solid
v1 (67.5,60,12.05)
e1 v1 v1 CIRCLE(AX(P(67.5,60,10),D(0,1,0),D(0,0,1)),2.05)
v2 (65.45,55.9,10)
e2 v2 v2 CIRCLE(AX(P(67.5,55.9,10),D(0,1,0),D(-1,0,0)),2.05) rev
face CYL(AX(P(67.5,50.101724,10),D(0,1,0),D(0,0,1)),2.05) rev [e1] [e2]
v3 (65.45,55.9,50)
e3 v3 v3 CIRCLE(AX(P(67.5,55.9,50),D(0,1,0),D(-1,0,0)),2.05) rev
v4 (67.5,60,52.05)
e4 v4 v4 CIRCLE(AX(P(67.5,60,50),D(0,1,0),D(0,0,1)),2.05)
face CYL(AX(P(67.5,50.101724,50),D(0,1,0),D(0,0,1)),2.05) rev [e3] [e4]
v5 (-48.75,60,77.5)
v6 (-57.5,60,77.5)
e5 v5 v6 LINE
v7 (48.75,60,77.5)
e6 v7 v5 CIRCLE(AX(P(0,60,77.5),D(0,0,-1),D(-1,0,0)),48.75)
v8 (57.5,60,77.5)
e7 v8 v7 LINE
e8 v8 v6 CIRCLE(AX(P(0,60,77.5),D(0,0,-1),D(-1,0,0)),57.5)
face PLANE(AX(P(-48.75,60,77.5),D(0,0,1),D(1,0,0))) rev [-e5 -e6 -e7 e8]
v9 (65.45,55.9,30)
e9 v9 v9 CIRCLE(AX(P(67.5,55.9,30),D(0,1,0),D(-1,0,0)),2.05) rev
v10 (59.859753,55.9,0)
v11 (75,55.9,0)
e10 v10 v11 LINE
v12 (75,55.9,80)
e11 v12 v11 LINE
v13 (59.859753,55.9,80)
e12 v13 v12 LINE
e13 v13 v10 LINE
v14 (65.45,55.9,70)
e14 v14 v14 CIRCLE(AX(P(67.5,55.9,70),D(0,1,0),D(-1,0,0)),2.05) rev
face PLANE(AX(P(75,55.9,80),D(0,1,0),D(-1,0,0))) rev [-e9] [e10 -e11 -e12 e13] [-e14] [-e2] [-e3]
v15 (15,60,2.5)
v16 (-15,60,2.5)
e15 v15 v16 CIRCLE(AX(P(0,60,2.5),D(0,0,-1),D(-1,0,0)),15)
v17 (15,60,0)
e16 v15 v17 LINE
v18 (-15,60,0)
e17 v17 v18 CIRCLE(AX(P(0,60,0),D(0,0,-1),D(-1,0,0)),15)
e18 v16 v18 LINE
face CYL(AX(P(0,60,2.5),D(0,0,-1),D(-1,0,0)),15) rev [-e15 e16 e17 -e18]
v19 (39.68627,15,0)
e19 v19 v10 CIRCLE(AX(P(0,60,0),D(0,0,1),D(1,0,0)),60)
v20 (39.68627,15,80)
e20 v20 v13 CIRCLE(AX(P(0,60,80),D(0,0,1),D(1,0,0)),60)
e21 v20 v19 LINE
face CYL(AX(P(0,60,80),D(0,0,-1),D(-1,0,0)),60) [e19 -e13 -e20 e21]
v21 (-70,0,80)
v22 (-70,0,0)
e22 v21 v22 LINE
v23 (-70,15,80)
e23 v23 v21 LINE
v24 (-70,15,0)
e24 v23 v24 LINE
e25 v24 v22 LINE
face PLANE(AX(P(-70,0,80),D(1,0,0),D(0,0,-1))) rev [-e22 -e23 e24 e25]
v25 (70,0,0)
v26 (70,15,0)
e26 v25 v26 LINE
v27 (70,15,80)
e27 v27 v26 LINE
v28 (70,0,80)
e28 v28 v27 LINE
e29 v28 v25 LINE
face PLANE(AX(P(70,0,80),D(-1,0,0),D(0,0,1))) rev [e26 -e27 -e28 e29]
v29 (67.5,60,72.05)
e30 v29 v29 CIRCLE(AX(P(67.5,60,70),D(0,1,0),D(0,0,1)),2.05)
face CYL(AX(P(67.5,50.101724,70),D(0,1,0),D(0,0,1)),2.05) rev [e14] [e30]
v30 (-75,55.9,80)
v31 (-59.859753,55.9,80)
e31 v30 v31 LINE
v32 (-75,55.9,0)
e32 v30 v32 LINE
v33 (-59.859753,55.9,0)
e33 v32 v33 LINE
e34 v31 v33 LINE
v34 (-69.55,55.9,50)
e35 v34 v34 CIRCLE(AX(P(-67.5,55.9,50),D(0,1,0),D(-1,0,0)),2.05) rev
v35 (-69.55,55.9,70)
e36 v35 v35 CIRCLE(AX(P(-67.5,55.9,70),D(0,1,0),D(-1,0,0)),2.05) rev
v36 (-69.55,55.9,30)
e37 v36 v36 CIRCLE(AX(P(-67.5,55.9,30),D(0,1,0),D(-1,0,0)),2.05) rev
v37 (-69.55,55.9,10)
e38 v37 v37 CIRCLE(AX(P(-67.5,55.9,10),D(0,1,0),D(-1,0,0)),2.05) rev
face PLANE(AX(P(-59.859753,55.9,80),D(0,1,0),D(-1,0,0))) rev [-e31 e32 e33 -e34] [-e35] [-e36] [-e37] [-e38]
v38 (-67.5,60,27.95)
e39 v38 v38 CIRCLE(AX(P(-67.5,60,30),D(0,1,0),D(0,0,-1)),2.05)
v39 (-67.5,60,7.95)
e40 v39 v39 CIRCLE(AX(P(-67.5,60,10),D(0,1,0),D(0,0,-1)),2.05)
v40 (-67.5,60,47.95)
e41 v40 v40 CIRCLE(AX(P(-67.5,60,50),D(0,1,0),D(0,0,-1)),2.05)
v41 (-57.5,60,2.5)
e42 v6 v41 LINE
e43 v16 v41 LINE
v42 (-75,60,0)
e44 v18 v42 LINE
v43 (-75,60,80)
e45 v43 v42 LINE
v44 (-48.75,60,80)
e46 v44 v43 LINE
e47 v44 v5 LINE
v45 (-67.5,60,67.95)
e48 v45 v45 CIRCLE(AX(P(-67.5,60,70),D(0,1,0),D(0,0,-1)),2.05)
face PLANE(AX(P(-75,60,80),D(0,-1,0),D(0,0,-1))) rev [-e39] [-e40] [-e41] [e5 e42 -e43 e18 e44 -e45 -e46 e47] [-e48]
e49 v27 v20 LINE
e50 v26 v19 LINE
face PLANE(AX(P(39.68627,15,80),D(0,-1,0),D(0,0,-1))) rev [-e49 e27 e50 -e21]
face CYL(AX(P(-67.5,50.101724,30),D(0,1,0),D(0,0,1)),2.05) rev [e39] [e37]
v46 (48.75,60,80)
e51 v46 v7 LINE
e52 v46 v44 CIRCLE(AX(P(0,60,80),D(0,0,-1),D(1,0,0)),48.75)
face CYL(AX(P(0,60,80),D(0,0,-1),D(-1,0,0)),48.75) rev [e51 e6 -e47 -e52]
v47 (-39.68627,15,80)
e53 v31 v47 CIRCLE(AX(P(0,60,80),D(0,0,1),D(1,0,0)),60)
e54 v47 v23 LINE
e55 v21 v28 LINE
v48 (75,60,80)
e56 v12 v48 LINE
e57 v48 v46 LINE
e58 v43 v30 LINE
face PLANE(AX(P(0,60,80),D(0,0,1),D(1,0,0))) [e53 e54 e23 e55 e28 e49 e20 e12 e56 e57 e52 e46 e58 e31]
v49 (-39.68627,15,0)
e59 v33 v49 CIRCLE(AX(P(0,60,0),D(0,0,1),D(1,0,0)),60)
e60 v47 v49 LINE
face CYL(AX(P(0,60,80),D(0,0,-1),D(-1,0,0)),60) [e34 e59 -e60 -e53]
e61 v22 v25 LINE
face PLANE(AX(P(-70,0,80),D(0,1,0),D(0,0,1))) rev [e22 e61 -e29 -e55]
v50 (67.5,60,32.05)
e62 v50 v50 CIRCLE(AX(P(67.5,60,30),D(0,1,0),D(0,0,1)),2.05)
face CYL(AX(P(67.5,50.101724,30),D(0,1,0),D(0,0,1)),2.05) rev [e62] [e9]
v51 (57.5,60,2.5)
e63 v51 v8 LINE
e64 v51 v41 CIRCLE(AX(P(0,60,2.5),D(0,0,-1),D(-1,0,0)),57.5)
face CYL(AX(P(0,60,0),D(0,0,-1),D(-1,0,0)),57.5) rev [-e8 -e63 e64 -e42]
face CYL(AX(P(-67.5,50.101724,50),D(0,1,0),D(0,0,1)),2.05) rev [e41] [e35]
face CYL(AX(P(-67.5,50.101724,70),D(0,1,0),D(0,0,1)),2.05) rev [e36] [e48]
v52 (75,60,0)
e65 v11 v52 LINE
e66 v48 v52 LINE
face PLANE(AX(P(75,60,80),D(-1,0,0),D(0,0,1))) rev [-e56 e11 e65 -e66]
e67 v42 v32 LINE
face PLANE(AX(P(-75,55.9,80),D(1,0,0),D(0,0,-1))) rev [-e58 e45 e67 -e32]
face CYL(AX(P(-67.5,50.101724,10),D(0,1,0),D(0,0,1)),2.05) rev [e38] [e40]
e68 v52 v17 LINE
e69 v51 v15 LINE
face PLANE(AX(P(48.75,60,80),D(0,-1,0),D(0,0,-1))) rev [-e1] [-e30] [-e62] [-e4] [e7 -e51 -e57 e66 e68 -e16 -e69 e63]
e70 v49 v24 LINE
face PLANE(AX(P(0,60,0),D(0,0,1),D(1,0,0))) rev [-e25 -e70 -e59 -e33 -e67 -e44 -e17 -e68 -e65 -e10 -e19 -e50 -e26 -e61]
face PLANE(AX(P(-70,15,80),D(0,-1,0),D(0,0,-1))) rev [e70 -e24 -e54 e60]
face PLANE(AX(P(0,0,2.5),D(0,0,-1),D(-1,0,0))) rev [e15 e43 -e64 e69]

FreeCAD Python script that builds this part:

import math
import FreeCAD as App
import Part
import Sketcher

V = App.Vector
Q = App.Units.Quantity


def add_polygon(sketch, points):
    """Adds a closed chain of lines whose ends are joined by coincident constraints."""
    first, n = sketch.GeometryCount, len(points)
    for a, b in zip(points, points[1:] + points[:1]):
        sketch.addGeometry(Part.LineSegment(App.Vector(*a, 0), App.Vector(*b, 0)), False)
    for i in range(n):
        sketch.addConstraint(Sketcher.Constraint("Coincident", first + i, 2, first + (i + 1) % n, 1))

doc = App.newDocument("Part")
body = doc.addObject("PartDesign::Body", "Body")

sketch1 = body.newObject("Sketcher::SketchObject", "Sketch")
sketch1.AttachmentSupport = (doc.getObject("XY_Plane"), [""])
sketch1.MapMode = "FlatFace"
sketch1.addGeometry(Part.LineSegment(V(-70, 0, 0), V(70, 0, 0)), False)
sketch1.addGeometry(Part.LineSegment(V(70, 0, 0), V(70, 15, 0)), False)
sketch1.addGeometry(Part.LineSegment(V(70, 15, 0), V(39.7, 15, 0)), False)
sketch1.addGeometry(Part.ArcOfCircle(Part.Circle(V(0, 60, 0), V(0, 0, 1), 60), math.radians(-49), math.radians(-4)), False)
sketch1.addGeometry(Part.LineSegment(V(59.9, 55.9, 0), V(75, 55.9, 0)), False)
sketch1.addGeometry(Part.LineSegment(V(75, 55.9, 0), V(75, 60, 0)), False)
sketch1.addGeometry(Part.LineSegment(V(75, 60, 0), V(48.8, 60, 0)), False)
sketch1.addGeometry(Part.ArcOfCircle(Part.Circle(V(0, 60, 0), V(0, 0, 1), 48.8), math.radians(180), math.radians(360)), False)
sketch1.addGeometry(Part.LineSegment(V(-48.8, 60, 0), V(-75, 60, 0)), False)
sketch1.addGeometry(Part.LineSegment(V(-75, 60, 0), V(-75, 55.9, 0)), False)
sketch1.addGeometry(Part.LineSegment(V(-75, 55.9, 0), V(-59.9, 55.9, 0)), False)
sketch1.addGeometry(Part.ArcOfCircle(Part.Circle(V(0, 60, 0), V(0, 0, 1), 60), math.radians(-176), math.radians(-131)), False)
sketch1.addGeometry(Part.LineSegment(V(-39.7, 15, 0), V(-70, 15, 0)), False)
sketch1.addGeometry(Part.LineSegment(V(-70, 15, 0), V(-70, 0, 0)), False)
sketch1.addConstraint(Sketcher.Constraint("Coincident", 0, 2, 1, 1))
sketch1.addConstraint(Sketcher.Constraint("Coincident", 1, 2, 2, 1))
sketch1.addConstraint(Sketcher.Constraint("Coincident", 2, 2, 3, 1))
sketch1.addConstraint(Sketcher.Constraint("Coincident", 3, 2, 4, 1))
sketch1.addConstraint(Sketcher.Constraint("Coincident", 4, 2, 5, 1))
sketch1.addConstraint(Sketcher.Constraint("Coincident", 5, 2, 6, 1))
sketch1.addConstraint(Sketcher.Constraint("Coincident", 6, 2, 7, 2))
sketch1.addConstraint(Sketcher.Constraint("Coincident", 7, 1, 8, 1))
sketch1.addConstraint(Sketcher.Constraint("Coincident", 8, 2, 9, 1))
sketch1.addConstraint(Sketcher.Constraint("Coincident", 9, 2, 10, 1))
sketch1.addConstraint(Sketcher.Constraint("Coincident", 10, 2, 11, 1))
sketch1.addConstraint(Sketcher.Constraint("Coincident", 11, 2, 12, 1))
sketch1.addConstraint(Sketcher.Constraint("Coincident", 12, 2, 13, 1))
sketch1.addConstraint(Sketcher.Constraint("Coincident", 13, 2, 0, 1))
sketch1.addConstraint(Sketcher.Constraint("Horizontal", 0))
sketch1.addConstraint(Sketcher.Constraint("Vertical", 1))
sketch1.addConstraint(Sketcher.Constraint("Horizontal", 2))
sketch1.addConstraint(Sketcher.Constraint("Horizontal", 4))
sketch1.addConstraint(Sketcher.Constraint("Vertical", 5))
sketch1.addConstraint(Sketcher.Constraint("Horizontal", 6))
sketch1.addConstraint(Sketcher.Constraint("Horizontal", 8))
sketch1.addConstraint(Sketcher.Constraint("Vertical", 9))
sketch1.addConstraint(Sketcher.Constraint("Horizontal", 10))
sketch1.addConstraint(Sketcher.Constraint("Horizontal", 12))
sketch1.addConstraint(Sketcher.Constraint("Vertical", 13))
sketch1.addConstraint(Sketcher.Constraint("Coincident", 7, 3, 3, 3))
sketch1.addConstraint(Sketcher.Constraint("Coincident", 11, 3, 3, 3))
sketch1.addConstraint(Sketcher.Constraint("Equal", 3, 11))
sketch1.addConstraint(Sketcher.Constraint("Symmetric", 0, 2, 13, 2, -1, 1))
sketch1.addConstraint(Sketcher.Constraint("Symmetric", 6, 2, 7, 1, -2))
sketch1.addConstraint(Sketcher.Constraint("Symmetric", 4, 2, 9, 2, -2))
sketch1.addConstraint(Sketcher.Constraint("Horizontal", 11, 3, 5, 2))
sketch1.addConstraint(Sketcher.Constraint("Horizontal", 2, 2, 11, 2))
sketch1.addConstraint(Sketcher.Constraint("Radius", 3, Q("60 mm")))
sketch1.addConstraint(Sketcher.Constraint("DistanceX", 0, 1, 0, 2, Q("140 mm")))
sketch1.addConstraint(Sketcher.Constraint("DistanceY", 1, 1, 1, 2, Q("15 mm")))
sketch1.addConstraint(Sketcher.Constraint("Radius", 7, Q("48.75 mm")))
sketch1.addConstraint(Sketcher.Constraint("DistanceY", 5, 1, 5, 2, Q("4.1 mm")))
sketch1.addConstraint(Sketcher.Constraint("DistanceY", -1, 1, 3, 3, Q("60 mm")))
sketch1.addConstraint(Sketcher.Constraint("DistanceX", -1, 1, 4, 2, Q("75 mm")))
pad1 = body.newObject("PartDesign::Pad", "Pad")
pad1.Profile = sketch1
pad1.Length = 80

sketch2 = body.newObject("Sketcher::SketchObject", "Sketch001")
sketch2.AttachmentSupport = (doc.getObject("XY_Plane"), [""])
sketch2.MapMode = "FlatFace"
sketch2.addGeometry(Part.ArcOfCircle(Part.Circle(V(0, 60, 0), V(0, 0, 1), 15), math.radians(180), math.radians(360)), False)
sketch2.addGeometry(Part.LineSegment(V(15, 60, 0), V(49, 60, 0)), False)
sketch2.addGeometry(Part.ArcOfCircle(Part.Circle(V(0, 60, 0), V(0, 0, 1), 49), math.radians(180), math.radians(360)), False)
sketch2.addGeometry(Part.LineSegment(V(-49, 60, 0), V(-15, 60, 0)), False)
sketch2.addConstraint(Sketcher.Constraint("Coincident", 0, 2, 1, 1))
sketch2.addConstraint(Sketcher.Constraint("Coincident", 1, 2, 2, 2))
sketch2.addConstraint(Sketcher.Constraint("Coincident", 2, 1, 3, 1))
sketch2.addConstraint(Sketcher.Constraint("Coincident", 3, 2, 0, 1))
sketch2.addConstraint(Sketcher.Constraint("Horizontal", 1))
sketch2.addConstraint(Sketcher.Constraint("Horizontal", 3))
sketch2.addConstraint(Sketcher.Constraint("Coincident", 2, 3, 0, 3))
sketch2.addConstraint(Sketcher.Constraint("Symmetric", 1, 2, 2, 1, -2))
sketch2.addConstraint(Sketcher.Constraint("Horizontal", 2, 3, 0, 2))
sketch2.addConstraint(Sketcher.Constraint("Radius", 0, Q("15 mm")))
sketch2.addConstraint(Sketcher.Constraint("Radius", 2, Q("48.75 mm")))
sketch2.addConstraint(Sketcher.Constraint("DistanceY", -1, 1, 0, 3, Q("60 mm")))
pad2 = body.newObject("PartDesign::Pad", "Pad001")
pad2.Profile = sketch2
pad2.Length = 2.5

sketch3 = body.newObject("Sketcher::SketchObject", "Sketch002")
sketch3.AttachmentSupport = (doc.getObject("XZ_Plane"), [""])
sketch3.MapMode = "FlatFace"
sketch3.AttachmentOffset = App.Placement(V(0, 0, -60), App.Rotation())
add_polygon(sketch3, [(-58, 2), (-58, 78), (-49, 78), (-49, 2)])
sketch3.addConstraint(Sketcher.Constraint("Vertical", 0))
sketch3.addConstraint(Sketcher.Constraint("Horizontal", 1))
sketch3.addConstraint(Sketcher.Constraint("Vertical", 2))
sketch3.addConstraint(Sketcher.Constraint("Horizontal", 3))
sketch3.addConstraint(Sketcher.Constraint("DistanceY", 0, 1, 0, 2, Q("75 mm")))
sketch3.addConstraint(Sketcher.Constraint("DistanceX", 1, 1, 1, 2, Q("8.75 mm")))
sketch3.addConstraint(Sketcher.Constraint("DistanceX", 0, 2, -1, 1, Q("57.5 mm")))
sketch3.addConstraint(Sketcher.Constraint("DistanceY", -1, 1, 0, 2, Q("77.5 mm")))
groove = body.newObject("PartDesign::Groove", "Groove")
groove.Profile = sketch3
groove.ReferenceAxis = (sketch3, ["V_Axis"])
groove.Angle = 360

sketch4 = body.newObject("Sketcher::SketchObject", "Sketch003")
sketch4.AttachmentSupport = (doc.getObject("XZ_Plane"), [""])
sketch4.MapMode = "FlatFace"
sketch4.AttachmentOffset = App.Placement(V(0, 0, -60), App.Rotation())
sketch4.addGeometry(Part.Circle(V(67.5, 70, 0), V(0, 0, 1), 2), False)
sketch4.addGeometry(Part.Circle(V(67.5, 50, 0), V(0, 0, 1), 2), False)
sketch4.addGeometry(Part.Circle(V(67.5, 30, 0), V(0, 0, 1), 2), False)
sketch4.addGeometry(Part.Circle(V(67.5, 10, 0), V(0, 0, 1), 2), False)
sketch4.addGeometry(Part.Circle(V(-67.5, 10, 0), V(0, 0, 1), 2), False)
sketch4.addGeometry(Part.Circle(V(-67.5, 30, 0), V(0, 0, 1), 2), False)
sketch4.addGeometry(Part.Circle(V(-67.5, 50, 0), V(0, 0, 1), 2), False)
sketch4.addGeometry(Part.Circle(V(-67.5, 70, 0), V(0, 0, 1), 2), False)
sketch4.addConstraint(Sketcher.Constraint("Equal", 0, 1))
sketch4.addConstraint(Sketcher.Constraint("Equal", 1, 2))
sketch4.addConstraint(Sketcher.Constraint("Equal", 2, 3))
sketch4.addConstraint(Sketcher.Constraint("Equal", 3, 4))
sketch4.addConstraint(Sketcher.Constraint("Equal", 4, 5))
sketch4.addConstraint(Sketcher.Constraint("Equal", 5, 6))
sketch4.addConstraint(Sketcher.Constraint("Equal", 6, 7))
sketch4.addConstraint(Sketcher.Constraint("Symmetric", 3, 3, 4, 3, -2))
sketch4.addConstraint(Sketcher.Constraint("Symmetric", 2, 3, 5, 3, -2))
sketch4.addConstraint(Sketcher.Constraint("Symmetric", 1, 3, 6, 3, -2))
sketch4.addConstraint(Sketcher.Constraint("Symmetric", 0, 3, 7, 3, -2))
sketch4.addConstraint(Sketcher.Constraint("Vertical", 0, 3, 1, 3))
sketch4.addConstraint(Sketcher.Constraint("Vertical", 1, 3, 2, 3))
sketch4.addConstraint(Sketcher.Constraint("Vertical", 2, 3, 3, 3))
sketch4.addConstraint(Sketcher.Constraint("Diameter", 0, Q("4.1 mm")))
sketch4.addConstraint(Sketcher.Constraint("DistanceY", -1, 1, 0, 3, Q("70 mm")))
sketch4.addConstraint(Sketcher.Constraint("DistanceY", -1, 1, 1, 3, Q("50 mm")))
sketch4.addConstraint(Sketcher.Constraint("DistanceY", -1, 1, 2, 3, Q("30 mm")))
sketch4.addConstraint(Sketcher.Constraint("DistanceY", -1, 1, 3, 3, Q("10 mm")))
sketch4.addConstraint(Sketcher.Constraint("DistanceX", 4, 3, 3, 3, Q("135 mm")))
pocket1 = body.newObject("PartDesign::Pocket", "Pocket")
pocket1.Profile = sketch4
pocket1.Length = 4.1
pocket1.Reversed = True

doc.recompute()
